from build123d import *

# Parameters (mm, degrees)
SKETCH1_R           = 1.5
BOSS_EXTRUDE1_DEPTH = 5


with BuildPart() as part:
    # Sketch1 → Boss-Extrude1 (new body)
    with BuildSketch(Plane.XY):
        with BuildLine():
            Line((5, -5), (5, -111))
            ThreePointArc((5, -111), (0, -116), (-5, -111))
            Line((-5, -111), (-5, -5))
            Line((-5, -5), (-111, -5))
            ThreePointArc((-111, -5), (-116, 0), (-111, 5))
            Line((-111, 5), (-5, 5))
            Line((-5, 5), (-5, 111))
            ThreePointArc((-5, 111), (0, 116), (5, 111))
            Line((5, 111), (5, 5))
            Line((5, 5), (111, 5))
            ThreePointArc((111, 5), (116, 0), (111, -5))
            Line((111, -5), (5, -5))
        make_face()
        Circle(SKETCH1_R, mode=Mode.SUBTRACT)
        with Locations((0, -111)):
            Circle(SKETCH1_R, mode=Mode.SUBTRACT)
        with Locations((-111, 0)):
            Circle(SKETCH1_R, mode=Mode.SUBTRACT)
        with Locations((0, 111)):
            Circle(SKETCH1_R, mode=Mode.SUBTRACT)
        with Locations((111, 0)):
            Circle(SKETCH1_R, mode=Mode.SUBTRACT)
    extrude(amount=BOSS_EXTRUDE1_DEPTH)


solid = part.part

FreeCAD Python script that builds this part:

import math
import FreeCAD as App
import Part
import Sketcher
Q = App.Units.Quantity

doc = App.newDocument("Part")
body = doc.addObject("PartDesign::Body", "Body")

# Sketch on XY plane
sketch1 = body.newObject("Sketcher::SketchObject", "Sketch")
sketch1.AttachmentSupport = (doc.getObject("XY_Plane"), [""])
sketch1.MapMode = "FlatFace"
sketch1.addGeometry(Part.LineSegment(App.Vector(5, -111, 0), App.Vector(5, -5, 0)), False)
sketch1.addGeometry(Part.LineSegment(App.Vector(5, -5, 0), App.Vector(111, -5, 0)), False)
sketch1.addGeometry(Part.ArcOfCircle(Part.Circle(App.Vector(111, 0, 0), App.Vector(0, 0, 1), 5), math.radians(-90), math.radians(90)), False)
sketch1.addGeometry(Part.LineSegment(App.Vector(111, 5, 0), App.Vector(5, 5, 0)), False)
sketch1.addGeometry(Part.LineSegment(App.Vector(5, 5, 0), App.Vector(5, 111, 0)), False)
sketch1.addGeometry(Part.ArcOfCircle(Part.Circle(App.Vector(0, 111, 0), App.Vector(0, 0, 1), 5), math.radians(0), math.radians(180)), False)
sketch1.addGeometry(Part.LineSegment(App.Vector(-5, 111, 0), App.Vector(-5, 5, 0)), False)
sketch1.addGeometry(Part.LineSegment(App.Vector(-5, 5, 0), App.Vector(-111, 5, 0)), False)
sketch1.addGeometry(Part.ArcOfCircle(Part.Circle(App.Vector(-111, 0, 0), App.Vector(0, 0, 1), 5), math.radians(90), math.radians(270)), False)
sketch1.addGeometry(Part.LineSegment(App.Vector(-111, -5, 0), App.Vector(-5, -5, 0)), False)
sketch1.addGeometry(Part.LineSegment(App.Vector(-5, -5, 0), App.Vector(-5, -111, 0)), False)
sketch1.addGeometry(Part.ArcOfCircle(Part.Circle(App.Vector(0, -111, 0), App.Vector(0, 0, 1), 5), math.radians(180), math.radians(360)), False)
sketch1.addGeometry(Part.Circle(App.Vector(0, -111, 0), App.Vector(0, 0, 1), 1.5), False)
sketch1.addGeometry(Part.Circle(App.Vector(111, 0, 0), App.Vector(0, 0, 1), 1.5), False)
sketch1.addGeometry(Part.Circle(App.Vector(0, 0, 0), App.Vector(0, 0, 1), 1.5), False)
sketch1.addGeometry(Part.Circle(App.Vector(-111, 0, 0), App.Vector(0, 0, 1), 1.5), False)
sketch1.addGeometry(Part.Circle(App.Vector(0, 111, 0), App.Vector(0, 0, 1), 1.5), False)
sketch1.addConstraint(Sketcher.Constraint("Coincident", 0, 2, 1, 1))
sketch1.addConstraint(Sketcher.Constraint("Tangent", 1, 2, 2, 1))
sketch1.addConstraint(Sketcher.Constraint("Tangent", 2, 2, 3, 1))
sketch1.addConstraint(Sketcher.Constraint("Coincident", 3, 2, 4, 1))
sketch1.addConstraint(Sketcher.Constraint("Tangent", 4, 2, 5, 1))
sketch1.addConstraint(Sketcher.Constraint("Tangent", 5, 2, 6, 1))
sketch1.addConstraint(Sketcher.Constraint("Coincident", 6, 2, 7, 1))
sketch1.addConstraint(Sketcher.Constraint("Tangent", 7, 2, 8, 1))
sketch1.addConstraint(Sketcher.Constraint("Tangent", 8, 2, 9, 1))
sketch1.addConstraint(Sketcher.Constraint("Coincident", 9, 2, 10, 1))
sketch1.addConstraint(Sketcher.Constraint("Tangent", 10, 2, 11, 1))
sketch1.addConstraint(Sketcher.Constraint("Tangent", 11, 2, 0, 1))
sketch1.addConstraint(Sketcher.Constraint("Vertical", 0))
sketch1.addConstraint(Sketcher.Constraint("Horizontal", 1))
sketch1.addConstraint(Sketcher.Constraint("Horizontal", 3))
sketch1.addConstraint(Sketcher.Constraint("Vertical", 4))
sketch1.addConstraint(Sketcher.Constraint("Vertical", 6))
sketch1.addConstraint(Sketcher.Constraint("Horizontal", 7))
sketch1.addConstraint(Sketcher.Constraint("Horizontal", 9))
sketch1.addConstraint(Sketcher.Constraint("Vertical", 10))
sketch1.addConstraint(Sketcher.Constraint("Coincident", 14, 3, -1, 1))
sketch1.addConstraint(Sketcher.Constraint("Coincident", 12, 3, 11, 3))
sketch1.addConstraint(Sketcher.Constraint("Coincident", 13, 3, 2, 3))
sketch1.addConstraint(Sketcher.Constraint("Coincident", 15, 3, 8, 3))
sketch1.addConstraint(Sketcher.Constraint("Coincident", 16, 3, 5, 3))
sketch1.addConstraint(Sketcher.Constraint("Equal", 2, 5))
sketch1.addConstraint(Sketcher.Constraint("Equal", 5, 8))
sketch1.addConstraint(Sketcher.Constraint("Equal", 8, 11))
sketch1.addConstraint(Sketcher.Constraint("Equal", 12, 13))
sketch1.addConstraint(Sketcher.Constraint("Equal", 13, 14))
sketch1.addConstraint(Sketcher.Constraint("Equal", 14, 15))
sketch1.addConstraint(Sketcher.Constraint("Equal", 15, 16))
sketch1.addConstraint(Sketcher.Constraint("Symmetric", 2, 3, 8, 3, -1, 1))
sketch1.addConstraint(Sketcher.Constraint("Symmetric", 5, 3, 11, 3, -1, 1))
sketch1.addConstraint(Sketcher.Constraint("Symmetric", 3, 2, 6, 2, -2))
sketch1.addConstraint(Sketcher.Constraint("Equal", 9, 0))
sketch1.addConstraint(Sketcher.Constraint("Diameter", 12, Q("3 mm")))
sketch1.addConstraint(Sketcher.Constraint("Radius", 2, Q("5 mm")))
sketch1.addConstraint(Sketcher.Constraint("DistanceX", 1, 1, 1, 2, Q("106 mm")))
pad1 = body.newObject("PartDesign::Pad", "Pad")
pad1.Profile = sketch1
pad1.Length = 5

doc.recompute()
